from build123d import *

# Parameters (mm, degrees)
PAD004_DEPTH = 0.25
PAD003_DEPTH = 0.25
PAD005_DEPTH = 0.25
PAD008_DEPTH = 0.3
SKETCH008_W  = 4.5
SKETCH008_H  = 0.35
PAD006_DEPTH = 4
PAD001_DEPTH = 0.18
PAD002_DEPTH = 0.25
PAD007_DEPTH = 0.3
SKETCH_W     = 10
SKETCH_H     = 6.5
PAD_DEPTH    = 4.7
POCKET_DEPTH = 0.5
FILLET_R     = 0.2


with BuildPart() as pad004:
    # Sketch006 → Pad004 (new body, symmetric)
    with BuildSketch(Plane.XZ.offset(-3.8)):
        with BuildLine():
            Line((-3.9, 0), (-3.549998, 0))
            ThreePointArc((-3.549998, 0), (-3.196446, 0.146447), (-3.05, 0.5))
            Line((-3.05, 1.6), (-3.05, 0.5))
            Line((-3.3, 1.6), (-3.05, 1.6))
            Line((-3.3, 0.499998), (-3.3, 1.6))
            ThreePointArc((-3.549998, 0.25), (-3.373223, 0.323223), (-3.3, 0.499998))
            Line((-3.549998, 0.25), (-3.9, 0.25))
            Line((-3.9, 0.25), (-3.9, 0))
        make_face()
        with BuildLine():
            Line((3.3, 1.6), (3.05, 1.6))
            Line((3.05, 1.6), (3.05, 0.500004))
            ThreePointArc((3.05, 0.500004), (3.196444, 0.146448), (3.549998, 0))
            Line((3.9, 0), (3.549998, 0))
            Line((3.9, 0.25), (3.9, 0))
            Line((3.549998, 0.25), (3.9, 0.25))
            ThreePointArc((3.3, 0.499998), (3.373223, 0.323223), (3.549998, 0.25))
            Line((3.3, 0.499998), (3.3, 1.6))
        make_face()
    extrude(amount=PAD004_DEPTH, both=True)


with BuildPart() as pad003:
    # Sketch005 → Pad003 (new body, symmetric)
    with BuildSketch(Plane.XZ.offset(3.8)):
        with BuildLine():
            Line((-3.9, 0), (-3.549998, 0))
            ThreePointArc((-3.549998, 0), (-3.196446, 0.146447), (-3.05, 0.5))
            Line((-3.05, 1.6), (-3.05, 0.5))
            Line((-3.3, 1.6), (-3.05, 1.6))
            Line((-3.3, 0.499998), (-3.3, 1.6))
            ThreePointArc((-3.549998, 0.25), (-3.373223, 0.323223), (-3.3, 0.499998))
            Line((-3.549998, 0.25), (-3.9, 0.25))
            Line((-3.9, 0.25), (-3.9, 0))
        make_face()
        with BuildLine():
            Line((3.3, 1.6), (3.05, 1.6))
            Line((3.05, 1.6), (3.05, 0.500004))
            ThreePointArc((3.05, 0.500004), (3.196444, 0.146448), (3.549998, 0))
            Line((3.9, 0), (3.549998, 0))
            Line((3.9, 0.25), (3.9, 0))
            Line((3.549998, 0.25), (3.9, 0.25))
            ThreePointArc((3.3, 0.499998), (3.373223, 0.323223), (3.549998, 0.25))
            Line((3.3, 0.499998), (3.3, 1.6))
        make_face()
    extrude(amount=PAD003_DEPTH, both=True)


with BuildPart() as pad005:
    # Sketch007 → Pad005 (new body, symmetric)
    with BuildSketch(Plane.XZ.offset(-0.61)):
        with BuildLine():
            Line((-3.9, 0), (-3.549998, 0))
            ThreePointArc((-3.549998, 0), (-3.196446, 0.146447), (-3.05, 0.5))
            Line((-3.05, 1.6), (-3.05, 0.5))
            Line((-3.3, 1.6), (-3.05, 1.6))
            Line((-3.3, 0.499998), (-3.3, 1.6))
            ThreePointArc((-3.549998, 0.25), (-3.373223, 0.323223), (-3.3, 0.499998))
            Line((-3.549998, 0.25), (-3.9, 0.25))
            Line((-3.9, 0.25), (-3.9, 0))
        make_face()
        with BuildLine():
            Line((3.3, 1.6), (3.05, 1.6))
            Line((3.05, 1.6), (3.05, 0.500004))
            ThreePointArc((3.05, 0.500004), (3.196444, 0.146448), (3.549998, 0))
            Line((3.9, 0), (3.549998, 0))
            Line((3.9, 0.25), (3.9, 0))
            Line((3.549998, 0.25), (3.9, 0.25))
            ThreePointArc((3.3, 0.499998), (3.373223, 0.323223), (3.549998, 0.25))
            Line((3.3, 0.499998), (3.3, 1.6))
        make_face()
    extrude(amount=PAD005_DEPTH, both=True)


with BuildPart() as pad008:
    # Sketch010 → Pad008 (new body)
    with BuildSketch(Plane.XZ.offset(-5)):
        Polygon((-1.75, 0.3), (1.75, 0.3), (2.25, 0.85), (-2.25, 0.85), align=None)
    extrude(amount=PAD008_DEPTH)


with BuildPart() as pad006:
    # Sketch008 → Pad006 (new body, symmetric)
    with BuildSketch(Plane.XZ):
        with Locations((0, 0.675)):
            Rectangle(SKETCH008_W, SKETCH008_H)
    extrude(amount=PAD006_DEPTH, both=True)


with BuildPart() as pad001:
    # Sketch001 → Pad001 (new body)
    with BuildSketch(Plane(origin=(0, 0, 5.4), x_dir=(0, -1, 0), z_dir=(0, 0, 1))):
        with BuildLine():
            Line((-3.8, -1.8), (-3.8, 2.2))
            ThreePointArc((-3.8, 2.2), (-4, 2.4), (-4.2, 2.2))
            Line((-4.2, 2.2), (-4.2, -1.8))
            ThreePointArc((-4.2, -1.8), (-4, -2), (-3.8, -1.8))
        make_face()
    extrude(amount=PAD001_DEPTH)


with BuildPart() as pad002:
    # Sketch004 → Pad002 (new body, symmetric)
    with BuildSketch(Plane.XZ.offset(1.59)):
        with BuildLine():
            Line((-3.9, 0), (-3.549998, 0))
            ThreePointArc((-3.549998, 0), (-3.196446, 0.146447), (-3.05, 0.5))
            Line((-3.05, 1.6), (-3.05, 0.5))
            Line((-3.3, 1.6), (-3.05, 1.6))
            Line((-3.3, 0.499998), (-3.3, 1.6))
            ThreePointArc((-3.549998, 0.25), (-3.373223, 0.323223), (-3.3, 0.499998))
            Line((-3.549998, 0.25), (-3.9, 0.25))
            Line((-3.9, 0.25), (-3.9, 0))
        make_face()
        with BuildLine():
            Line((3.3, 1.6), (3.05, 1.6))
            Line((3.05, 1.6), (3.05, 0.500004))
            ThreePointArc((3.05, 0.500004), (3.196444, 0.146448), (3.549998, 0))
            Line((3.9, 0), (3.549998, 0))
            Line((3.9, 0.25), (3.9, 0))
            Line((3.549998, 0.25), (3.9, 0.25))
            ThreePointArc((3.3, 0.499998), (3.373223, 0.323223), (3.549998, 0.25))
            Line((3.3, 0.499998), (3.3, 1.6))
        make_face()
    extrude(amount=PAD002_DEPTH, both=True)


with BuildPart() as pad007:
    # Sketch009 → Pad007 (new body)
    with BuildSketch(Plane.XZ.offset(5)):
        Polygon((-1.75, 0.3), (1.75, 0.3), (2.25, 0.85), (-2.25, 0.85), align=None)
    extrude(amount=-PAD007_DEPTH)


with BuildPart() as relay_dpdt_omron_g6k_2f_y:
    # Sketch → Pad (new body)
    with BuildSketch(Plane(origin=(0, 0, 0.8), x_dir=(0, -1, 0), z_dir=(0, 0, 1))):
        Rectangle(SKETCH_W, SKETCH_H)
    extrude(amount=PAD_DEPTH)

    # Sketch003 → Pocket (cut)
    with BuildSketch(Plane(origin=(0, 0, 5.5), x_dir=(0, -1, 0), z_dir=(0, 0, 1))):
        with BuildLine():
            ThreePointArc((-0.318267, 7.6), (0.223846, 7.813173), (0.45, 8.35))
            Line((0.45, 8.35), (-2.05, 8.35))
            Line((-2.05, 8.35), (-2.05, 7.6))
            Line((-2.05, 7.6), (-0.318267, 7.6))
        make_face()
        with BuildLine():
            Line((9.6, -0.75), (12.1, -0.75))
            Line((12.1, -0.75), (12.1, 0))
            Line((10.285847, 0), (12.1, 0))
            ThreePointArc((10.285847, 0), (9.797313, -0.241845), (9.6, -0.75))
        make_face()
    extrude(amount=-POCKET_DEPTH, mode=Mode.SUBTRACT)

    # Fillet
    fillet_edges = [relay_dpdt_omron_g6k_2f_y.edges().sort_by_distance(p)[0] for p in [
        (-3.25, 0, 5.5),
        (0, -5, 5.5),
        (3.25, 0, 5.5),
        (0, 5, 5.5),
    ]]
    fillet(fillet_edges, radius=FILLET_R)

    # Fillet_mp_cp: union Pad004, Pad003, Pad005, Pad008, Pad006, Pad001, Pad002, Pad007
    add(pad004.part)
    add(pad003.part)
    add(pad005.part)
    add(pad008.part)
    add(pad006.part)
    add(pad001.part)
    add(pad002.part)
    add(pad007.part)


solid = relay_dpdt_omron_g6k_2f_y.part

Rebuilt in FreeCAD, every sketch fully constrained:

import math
import FreeCAD as App
import Part
import Sketcher
from FreeCAD import Vector
Q = App.Units.Quantity


def edges_at(feature, points):
    """Names of the edges that pass closest to the given points."""
    edges = feature.Shape.Edges
    near = lambda p: min(range(len(edges)), key=lambda i: edges[i].distToShape(Part.Vertex(*p))[0])
    return sorted({f"Edge{near(p) + 1}" for p in points})

doc = App.newDocument("Part")
body = doc.addObject("PartDesign::Body", "Body")
body.AllowCompound = True

# Sketch on XZ plane
sketch1 = body.newObject("Sketcher::SketchObject", "Sketch")
sketch1.AttachmentSupport = (doc.getObject("XZ_Plane"), [""])
sketch1.MapMode = "FlatFace"
sketch1.AttachmentOffset = App.Placement(Vector(0, 0, -3.8), App.Rotation())
sketch1.addGeometry([
    Part.LineSegment(Vector(-3.9, 0, 0), Vector(-3.55, 0, 0)),  # 0
    Part.ArcOfCircle(Part.Circle(Vector(-3.55, 0.5, 0), Vector(0, 0, 1), 0.5), math.radians(-90), math.radians(0)),  # 1
    Part.LineSegment(Vector(-3.05, 0.5, 0), Vector(-3.05, 1.6, 0)),  # 2
    Part.LineSegment(Vector(-3.05, 1.6, 0), Vector(-3.3, 1.6, 0)),  # 3
    Part.LineSegment(Vector(-3.3, 1.6, 0), Vector(-3.3, 0.5, 0)),  # 4
    Part.ArcOfCircle(Part.Circle(Vector(-3.55, 0.5, 0), Vector(0, 0, 1), 0.25), math.radians(-90), math.radians(0)),  # 5
    Part.LineSegment(Vector(-3.55, 0.25, 0), Vector(-3.9, 0.25, 0)),  # 6
    Part.LineSegment(Vector(-3.9, 0.25, 0), Vector(-3.9, 0, 0)),  # 7
    Part.LineSegment(Vector(3.3, 1.6, 0), Vector(3.05, 1.6, 0)),  # 8
    Part.LineSegment(Vector(3.05, 1.6, 0), Vector(3.05, 0.5, 0)),  # 9
    Part.ArcOfCircle(Part.Circle(Vector(3.55, 0.5, 0), Vector(0, 0, 1), 0.5), math.radians(180), math.radians(270)),  # 10
    Part.LineSegment(Vector(3.55, 0, 0), Vector(3.9, 0, 0)),  # 11
    Part.LineSegment(Vector(3.9, 0, 0), Vector(3.9, 0.25, 0)),  # 12
    Part.LineSegment(Vector(3.9, 0.25, 0), Vector(3.55, 0.25, 0)),  # 13
    Part.ArcOfCircle(Part.Circle(Vector(3.55, 0.5, 0), Vector(0, 0, 1), 0.25), math.radians(-180), math.radians(-90)),  # 14
    Part.LineSegment(Vector(3.3, 0.5, 0), Vector(3.3, 1.6, 0)),  # 15
], False)
sketch1.addConstraint([
    Sketcher.Constraint("Coincident", 0, 2, 1, 1),
    Sketcher.Constraint("Tangent", 1, 2, 2, 1),
    Sketcher.Constraint("Coincident", 2, 2, 3, 1),
    Sketcher.Constraint("Coincident", 3, 2, 4, 1),
    Sketcher.Constraint("Coincident", 4, 2, 5, 2),
    Sketcher.Constraint("Coincident", 5, 1, 6, 1),
    Sketcher.Constraint("Coincident", 6, 2, 7, 1),
    Sketcher.Constraint("Coincident", 7, 2, 0, 1),
    Sketcher.Constraint("Coincident", 8, 2, 9, 1),
    Sketcher.Constraint("Coincident", 9, 2, 10, 1),
    Sketcher.Constraint("Tangent", 10, 2, 11, 1),
    Sketcher.Constraint("Coincident", 11, 2, 12, 1),
    Sketcher.Constraint("Coincident", 12, 2, 13, 1),
    Sketcher.Constraint("Coincident", 13, 2, 14, 2),
    Sketcher.Constraint("Coincident", 14, 1, 15, 1),
    Sketcher.Constraint("Coincident", 15, 2, 8, 1),
    Sketcher.Constraint("Horizontal", 0),
    Sketcher.Constraint("Vertical", 2),
    Sketcher.Constraint("Horizontal", 3),
    Sketcher.Constraint("Vertical", 4),
    Sketcher.Constraint("Horizontal", 6),
    Sketcher.Constraint("Vertical", 7),
    Sketcher.Constraint("Horizontal", 8),
    Sketcher.Constraint("Vertical", 9),
    Sketcher.Constraint("Horizontal", 11),
    Sketcher.Constraint("Vertical", 12),
    Sketcher.Constraint("Horizontal", 13),
    Sketcher.Constraint("Vertical", 15),
    Sketcher.Constraint("Coincident", 5, 3, 1, 3),
    Sketcher.Constraint("Coincident", 14, 3, 10, 3),
    Sketcher.Constraint("Equal", 1, 10),
    Sketcher.Constraint("Equal", 5, 14),
    Sketcher.Constraint("Symmetric", 0, 2, 10, 2, -1, 1),
    Sketcher.Constraint("Symmetric", 1, 3, 10, 3, -2),
    Sketcher.Constraint("Horizontal", 14, 3, 4, 2),
    Sketcher.Constraint("Horizontal", 3, 2, 8, 2),
    Sketcher.Constraint("Horizontal", 4, 2, 14, 1),
    Sketcher.Constraint("Vertical", 0, 2, 5, 1),
    Sketcher.Constraint("Vertical", 10, 2, 13, 2),
    Sketcher.Constraint("Equal", 6, 11),
    Sketcher.Constraint("Radius", 1, Q("0.5 mm")),
    Sketcher.Constraint("Radius", 5, Q("0.249999 mm")),
    Sketcher.Constraint("DistanceY", 2, 1, 2, 2, Q("1.1 mm")),
    Sketcher.Constraint("DistanceX", 0, 1, 0, 2, Q("0.350002 mm")),
    Sketcher.Constraint("DistanceX", 3, 2, -1, 1, Q("3.3 mm")),
    Sketcher.Constraint("DistanceY", 9, 2, 9, 1, Q("1.099996 mm")),
])
pad1 = body.newObject("PartDesign::Pad", "Pad")
pad1.Profile = sketch1
pad1.Length = 0.5
pad1.Midplane = True
body2 = doc.addObject("PartDesign::Body", "Body001")
body2.AllowCompound = True

# Sketch on XZ plane
sketch2 = body2.newObject("Sketcher::SketchObject", "Sketch001")
sketch2.AttachmentSupport = (doc.getObject("XZ_Plane001"), [""])
sketch2.MapMode = "FlatFace"
sketch2.AttachmentOffset = App.Placement(Vector(0, 0, 3.8), App.Rotation())
sketch2.addGeometry([
    Part.LineSegment(Vector(-3.9, 0, 0), Vector(-3.55, 0, 0)),  # 0
    Part.ArcOfCircle(Part.Circle(Vector(-3.55, 0.5, 0), Vector(0, 0, 1), 0.5), math.radians(-90), math.radians(0)),  # 1
    Part.LineSegment(Vector(-3.05, 0.5, 0), Vector(-3.05, 1.6, 0)),  # 2
    Part.LineSegment(Vector(-3.05, 1.6, 0), Vector(-3.3, 1.6, 0)),  # 3
    Part.LineSegment(Vector(-3.3, 1.6, 0), Vector(-3.3, 0.5, 0)),  # 4
    Part.ArcOfCircle(Part.Circle(Vector(-3.55, 0.5, 0), Vector(0, 0, 1), 0.25), math.radians(-90), math.radians(0)),  # 5
    Part.LineSegment(Vector(-3.55, 0.25, 0), Vector(-3.9, 0.25, 0)),  # 6
    Part.LineSegment(Vector(-3.9, 0.25, 0), Vector(-3.9, 0, 0)),  # 7
    Part.LineSegment(Vector(3.3, 1.6, 0), Vector(3.05, 1.6, 0)),  # 8
    Part.LineSegment(Vector(3.05, 1.6, 0), Vector(3.05, 0.5, 0)),  # 9
    Part.ArcOfCircle(Part.Circle(Vector(3.55, 0.5, 0), Vector(0, 0, 1), 0.5), math.radians(180), math.radians(270)),  # 10
    Part.LineSegment(Vector(3.55, 0, 0), Vector(3.9, 0, 0)),  # 11
    Part.LineSegment(Vector(3.9, 0, 0), Vector(3.9, 0.25, 0)),  # 12
    Part.LineSegment(Vector(3.9, 0.25, 0), Vector(3.55, 0.25, 0)),  # 13
    Part.ArcOfCircle(Part.Circle(Vector(3.55, 0.5, 0), Vector(0, 0, 1), 0.25), math.radians(-180), math.radians(-90)),  # 14
    Part.LineSegment(Vector(3.3, 0.5, 0), Vector(3.3, 1.6, 0)),  # 15
], False)
sketch2.addConstraint([
    Sketcher.Constraint("Coincident", 0, 2, 1, 1),
    Sketcher.Constraint("Tangent", 1, 2, 2, 1),
    Sketcher.Constraint("Coincident", 2, 2, 3, 1),
    Sketcher.Constraint("Coincident", 3, 2, 4, 1),
    Sketcher.Constraint("Coincident", 4, 2, 5, 2),
    Sketcher.Constraint("Coincident", 5, 1, 6, 1),
    Sketcher.Constraint("Coincident", 6, 2, 7, 1),
    Sketcher.Constraint("Coincident", 7, 2, 0, 1),
    Sketcher.Constraint("Coincident", 8, 2, 9, 1),
    Sketcher.Constraint("Coincident", 9, 2, 10, 1),
    Sketcher.Constraint("Tangent", 10, 2, 11, 1),
    Sketcher.Constraint("Coincident", 11, 2, 12, 1),
    Sketcher.Constraint("Coincident", 12, 2, 13, 1),
    Sketcher.Constraint("Coincident", 13, 2, 14, 2),
    Sketcher.Constraint("Coincident", 14, 1, 15, 1),
    Sketcher.Constraint("Coincident", 15, 2, 8, 1),
    Sketcher.Constraint("Horizontal", 0),
    Sketcher.Constraint("Vertical", 2),
    Sketcher.Constraint("Horizontal", 3),
    Sketcher.Constraint("Vertical", 4),
    Sketcher.Constraint("Horizontal", 6),
    Sketcher.Constraint("Vertical", 7),
    Sketcher.Constraint("Horizontal", 8),
    Sketcher.Constraint("Vertical", 9),
    Sketcher.Constraint("Horizontal", 11),
    Sketcher.Constraint("Vertical", 12),
    Sketcher.Constraint("Horizontal", 13),
    Sketcher.Constraint("Vertical", 15),
    Sketcher.Constraint("Coincident", 5, 3, 1, 3),
    Sketcher.Constraint("Coincident", 14, 3, 10, 3),
    Sketcher.Constraint("Equal", 1, 10),
    Sketcher.Constraint("Equal", 5, 14),
    Sketcher.Constraint("Symmetric", 0, 2, 10, 2, -1, 1),
    Sketcher.Constraint("Symmetric", 1, 3, 10, 3, -2),
    Sketcher.Constraint("Horizontal", 14, 3, 4, 2),
    Sketcher.Constraint("Horizontal", 3, 2, 8, 2),
    Sketcher.Constraint("Horizontal", 4, 2, 14, 1),
    Sketcher.Constraint("Vertical", 0, 2, 5, 1),
    Sketcher.Constraint("Vertical", 10, 2, 13, 2),
    Sketcher.Constraint("Equal", 6, 11),
    Sketcher.Constraint("Radius", 1, Q("0.5 mm")),
    Sketcher.Constraint("Radius", 5, Q("0.249999 mm")),
    Sketcher.Constraint("DistanceY", 2, 1, 2, 2, Q("1.1 mm")),
    Sketcher.Constraint("DistanceX", 0, 1, 0, 2, Q("0.350002 mm")),
    Sketcher.Constraint("DistanceX", 3, 2, -1, 1, Q("3.3 mm")),
    Sketcher.Constraint("DistanceY", 9, 2, 9, 1, Q("1.099996 mm")),
])
pad2 = body2.newObject("PartDesign::Pad", "Pad001")
pad2.Profile = sketch2
pad2.Length = 0.5
pad2.Midplane = True
body3 = doc.addObject("PartDesign::Body", "Body002")
body3.AllowCompound = True

# Sketch on XZ plane
sketch3 = body3.newObject("Sketcher::SketchObject", "Sketch002")
sketch3.AttachmentSupport = (doc.getObject("XZ_Plane002"), [""])
sketch3.MapMode = "FlatFace"
sketch3.AttachmentOffset = App.Placement(Vector(0, 0, -0.61), App.Rotation())
sketch3.addGeometry([
    Part.LineSegment(Vector(-3.9, 0, 0), Vector(-3.55, 0, 0)),  # 0
    Part.ArcOfCircle(Part.Circle(Vector(-3.55, 0.5, 0), Vector(0, 0, 1), 0.5), math.radians(-90), math.radians(0)),  # 1
    Part.LineSegment(Vector(-3.05, 0.5, 0), Vector(-3.05, 1.6, 0)),  # 2
    Part.LineSegment(Vector(-3.05, 1.6, 0), Vector(-3.3, 1.6, 0)),  # 3
    Part.LineSegment(Vector(-3.3, 1.6, 0), Vector(-3.3, 0.5, 0)),  # 4
    Part.ArcOfCircle(Part.Circle(Vector(-3.55, 0.5, 0), Vector(0, 0, 1), 0.25), math.radians(-90), math.radians(0)),  # 5
    Part.LineSegment(Vector(-3.55, 0.25, 0), Vector(-3.9, 0.25, 0)),  # 6
    Part.LineSegment(Vector(-3.9, 0.25, 0), Vector(-3.9, 0, 0)),  # 7
    Part.LineSegment(Vector(3.3, 1.6, 0), Vector(3.05, 1.6, 0)),  # 8
    Part.LineSegment(Vector(3.05, 1.6, 0), Vector(3.05, 0.5, 0)),  # 9
    Part.ArcOfCircle(Part.Circle(Vector(3.55, 0.5, 0), Vector(0, 0, 1), 0.5), math.radians(180), math.radians(270)),  # 10
    Part.LineSegment(Vector(3.55, 0, 0), Vector(3.9, 0, 0)),  # 11
    Part.LineSegment(Vector(3.9, 0, 0), Vector(3.9, 0.25, 0)),  # 12
    Part.LineSegment(Vector(3.9, 0.25, 0), Vector(3.55, 0.25, 0)),  # 13
    Part.ArcOfCircle(Part.Circle(Vector(3.55, 0.5, 0), Vector(0, 0, 1), 0.25), math.radians(-180), math.radians(-90)),  # 14
    Part.LineSegment(Vector(3.3, 0.5, 0), Vector(3.3, 1.6, 0)),  # 15
], False)
sketch3.addConstraint([
    Sketcher.Constraint("Coincident", 0, 2, 1, 1),
    Sketcher.Constraint("Tangent", 1, 2, 2, 1),
    Sketcher.Constraint("Coincident", 2, 2, 3, 1),
    Sketcher.Constraint("Coincident", 3, 2, 4, 1),
    Sketcher.Constraint("Coincident", 4, 2, 5, 2),
    Sketcher.Constraint("Coincident", 5, 1, 6, 1),
    Sketcher.Constraint("Coincident", 6, 2, 7, 1),
    Sketcher.Constraint("Coincident", 7, 2, 0, 1),
    Sketcher.Constraint("Coincident", 8, 2, 9, 1),
    Sketcher.Constraint("Coincident", 9, 2, 10, 1),
    Sketcher.Constraint("Tangent", 10, 2, 11, 1),
    Sketcher.Constraint("Coincident", 11, 2, 12, 1),
    Sketcher.Constraint("Coincident", 12, 2, 13, 1),
    Sketcher.Constraint("Coincident", 13, 2, 14, 2),
    Sketcher.Constraint("Coincident", 14, 1, 15, 1),
    Sketcher.Constraint("Coincident", 15, 2, 8, 1),
    Sketcher.Constraint("Horizontal", 0),
    Sketcher.Constraint("Vertical", 2),
    Sketcher.Constraint("Horizontal", 3),
    Sketcher.Constraint("Vertical", 4),
    Sketcher.Constraint("Horizontal", 6),
    Sketcher.Constraint("Vertical", 7),
    Sketcher.Constraint("Horizontal", 8),
    Sketcher.Constraint("Vertical", 9),
    Sketcher.Constraint("Horizontal", 11),
    Sketcher.Constraint("Vertical", 12),
    Sketcher.Constraint("Horizontal", 13),
    Sketcher.Constraint("Vertical", 15),
    Sketcher.Constraint("Coincident", 5, 3, 1, 3),
    Sketcher.Constraint("Coincident", 14, 3, 10, 3),
    Sketcher.Constraint("Equal", 1, 10),
    Sketcher.Constraint("Equal", 5, 14),
    Sketcher.Constraint("Symmetric", 0, 2, 10, 2, -1, 1),
    Sketcher.Constraint("Symmetric", 1, 3, 10, 3, -2),
    Sketcher.Constraint("Horizontal", 14, 3, 4, 2),
    Sketcher.Constraint("Horizontal", 3, 2, 8, 2),
    Sketcher.Constraint("Horizontal", 4, 2, 14, 1),
    Sketcher.Constraint("Vertical", 0, 2, 5, 1),
    Sketcher.Constraint("Vertical", 10, 2, 13, 2),
    Sketcher.Constraint("Equal", 6, 11),
    Sketcher.Constraint("Radius", 1, Q("0.5 mm")),
    Sketcher.Constraint("Radius", 5, Q("0.249999 mm")),
    Sketcher.Constraint("DistanceY", 2, 1, 2, 2, Q("1.1 mm")),
    Sketcher.Constraint("DistanceX", 0, 1, 0, 2, Q("0.350002 mm")),
    Sketcher.Constraint("DistanceX", 3, 2, -1, 1, Q("3.3 mm")),
    Sketcher.Constraint("DistanceY", 9, 2, 9, 1, Q("1.099996 mm")),
])
pad3 = body3.newObject("PartDesign::Pad", "Pad002")
pad3.Profile = sketch3
pad3.Length = 0.5
pad3.Midplane = True
body4 = doc.addObject("PartDesign::Body", "Body003")

# Sketch on XZ plane
sketch4 = body4.newObject("Sketcher::SketchObject", "Sketch003")
sketch4.AttachmentSupport = (doc.getObject("XZ_Plane003"), [""])
sketch4.MapMode = "FlatFace"
sketch4.AttachmentOffset = App.Placement(Vector(0, 0, -5), App.Rotation())
sketch4.addGeometry([
    Part.LineSegment(Vector(-1.8, 0.3, 0), Vector(1.8, 0.3, 0)),
    Part.LineSegment(Vector(1.8, 0.3, 0), Vector(2.2, 0.8, 0)),
    Part.LineSegment(Vector(2.2, 0.8, 0), Vector(-2.2, 0.8, 0)),
    Part.LineSegment(Vector(-2.2, 0.8, 0), Vector(-1.8, 0.3, 0)),
], False)
sketch4.addConstraint([
    Sketcher.Constraint("Coincident", 0, 2, 1, 1),
    Sketcher.Constraint("Coincident", 1, 2, 2, 1),
    Sketcher.Constraint("Coincident", 2, 2, 3, 1),
    Sketcher.Constraint("Coincident", 3, 2, 0, 1),
    Sketcher.Constraint("Horizontal", 0),
    Sketcher.Constraint("Horizontal", 2),
    Sketcher.Constraint("Equal", 1, 3),
    Sketcher.Constraint("DistanceX", 0, 1, 0, 2, Q("3.5 mm")),
    Sketcher.Constraint("DistanceX", 2, 2, 2, 1, Q("4.5 mm")),
    Sketcher.Constraint("DistanceY", -1, 1, 0, 2, Q("0.3 mm")),
    Sketcher.Constraint("DistanceX", -1, 1, 0, 2, Q("1.75 mm")),
    Sketcher.Constraint("DistanceY", -1, 1, 1, 2, Q("0.85 mm")),
])
pad4 = body4.newObject("PartDesign::Pad", "Pad003")
pad4.Profile = sketch4
pad4.Length = 0.3
body5 = doc.addObject("PartDesign::Body", "Body004")

# Sketch on XZ plane
sketch5 = body5.newObject("Sketcher::SketchObject", "Sketch004")
sketch5.AttachmentSupport = (doc.getObject("XZ_Plane004"), [""])
sketch5.MapMode = "FlatFace"
sketch5.addGeometry([
    Part.LineSegment(Vector(-2.25, 0.85, 0), Vector(-2.25, 0.5, 0)),
    Part.LineSegment(Vector(-2.25, 0.5, 0), Vector(2.25, 0.5, 0)),
    Part.LineSegment(Vector(2.25, 0.5, 0), Vector(2.25, 0.85, 0)),
    Part.LineSegment(Vector(2.25, 0.85, 0), Vector(-2.25, 0.85, 0)),
], False)
sketch5.addConstraint([
    Sketcher.Constraint("Coincident", 0, 2, 1, 1),
    Sketcher.Constraint("Coincident", 1, 2, 2, 1),
    Sketcher.Constraint("Coincident", 2, 2, 3, 1),
    Sketcher.Constraint("Coincident", 3, 2, 0, 1),
    Sketcher.Constraint("Vertical", 0),
    Sketcher.Constraint("Horizontal", 1),
    Sketcher.Constraint("Vertical", 2),
    Sketcher.Constraint("Horizontal", 3),
    Sketcher.Constraint("DistanceX", 1, 1, 1, 2, Q("4.5 mm")),
    Sketcher.Constraint("DistanceY", 0, 2, 0, 1, Q("0.35 mm")),
    Sketcher.Constraint("DistanceY", -1, 1, 0, 2, Q("0.5 mm")),
    Sketcher.Constraint("DistanceX", 0, 2, -1, 1, Q("2.25 mm")),
])
pad5 = body5.newObject("PartDesign::Pad", "Pad004")
pad5.Profile = sketch5
pad5.Length = 8
pad5.Midplane = True
body6 = doc.addObject("PartDesign::Body", "Body005")

# Sketch on XY plane
sketch6 = body6.newObject("Sketcher::SketchObject", "Sketch005")
sketch6.AttachmentSupport = (doc.getObject("XY_Plane005"), [""])
sketch6.MapMode = "FlatFace"
sketch6.AttachmentOffset = App.Placement(Vector(0, 0, 5.4), App.Rotation())
sketch6.addGeometry([
    Part.LineSegment(Vector(-1.8, 3.8, 0), Vector(2.2, 3.8, 0)),
    Part.ArcOfCircle(Part.Circle(Vector(2.2, 4, 0), Vector(0, 0, 1), 0.2), math.radians(-90), math.radians(90)),
    Part.LineSegment(Vector(2.2, 4.2, 0), Vector(-1.8, 4.2, 0)),
    Part.ArcOfCircle(Part.Circle(Vector(-1.8, 4, 0), Vector(0, 0, 1), 0.2), math.radians(90), math.radians(270)),
], False)
sketch6.addConstraint([
    Sketcher.Constraint("Tangent", 0, 2, 1, 1),
    Sketcher.Constraint("Tangent", 1, 2, 2, 1),
    Sketcher.Constraint("Tangent", 2, 2, 3, 1),
    Sketcher.Constraint("Tangent", 3, 2, 0, 1),
    Sketcher.Constraint("Horizontal", 0),
    Sketcher.Constraint("Horizontal", 2),
    Sketcher.Constraint("Radius", 1, Q("0.2 mm")),
    Sketcher.Constraint("DistanceX", 0, 1, 0, 2, Q("4 mm")),
    Sketcher.Constraint("DistanceY", -1, 1, 1, 3, Q("4 mm")),
    Sketcher.Constraint("DistanceX", -1, 1, 1, 3, Q("2.2 mm")),
])
pad6 = body6.newObject("PartDesign::Pad", "Pad005")
pad6.Profile = sketch6
pad6.Length = 0.18
body7 = doc.addObject("PartDesign::Body", "Body006")
body7.AllowCompound = True

# Sketch on XZ plane
sketch7 = body7.newObject("Sketcher::SketchObject", "Sketch006")
sketch7.AttachmentSupport = (doc.getObject("XZ_Plane006"), [""])
sketch7.MapMode = "FlatFace"
sketch7.AttachmentOffset = App.Placement(Vector(0, 0, 1.59), App.Rotation())
sketch7.addGeometry([
    Part.LineSegment(Vector(-3.9, 0, 0), Vector(-3.55, 0, 0)),  # 0
    Part.ArcOfCircle(Part.Circle(Vector(-3.55, 0.5, 0), Vector(0, 0, 1), 0.5), math.radians(-90), math.radians(0)),  # 1
    Part.LineSegment(Vector(-3.05, 0.5, 0), Vector(-3.05, 1.6, 0)),  # 2
    Part.LineSegment(Vector(-3.05, 1.6, 0), Vector(-3.3, 1.6, 0)),  # 3
    Part.LineSegment(Vector(-3.3, 1.6, 0), Vector(-3.3, 0.5, 0)),  # 4
    Part.ArcOfCircle(Part.Circle(Vector(-3.55, 0.5, 0), Vector(0, 0, 1), 0.25), math.radians(-90), math.radians(0)),  # 5
    Part.LineSegment(Vector(-3.55, 0.25, 0), Vector(-3.9, 0.25, 0)),  # 6
    Part.LineSegment(Vector(-3.9, 0.25, 0), Vector(-3.9, 0, 0)),  # 7
    Part.LineSegment(Vector(3.3, 1.6, 0), Vector(3.05, 1.6, 0)),  # 8
    Part.LineSegment(Vector(3.05, 1.6, 0), Vector(3.05, 0.5, 0)),  # 9
    Part.ArcOfCircle(Part.Circle(Vector(3.55, 0.5, 0), Vector(0, 0, 1), 0.5), math.radians(180), math.radians(270)),  # 10
    Part.LineSegment(Vector(3.55, 0, 0), Vector(3.9, 0, 0)),  # 11
    Part.LineSegment(Vector(3.9, 0, 0), Vector(3.9, 0.25, 0)),  # 12
    Part.LineSegment(Vector(3.9, 0.25, 0), Vector(3.55, 0.25, 0)),  # 13
    Part.ArcOfCircle(Part.Circle(Vector(3.55, 0.5, 0), Vector(0, 0, 1), 0.25), math.radians(-180), math.radians(-90)),  # 14
    Part.LineSegment(Vector(3.3, 0.5, 0), Vector(3.3, 1.6, 0)),  # 15
], False)
sketch7.addConstraint([
    Sketcher.Constraint("Coincident", 0, 2, 1, 1),
    Sketcher.Constraint("Tangent", 1, 2, 2, 1),
    Sketcher.Constraint("Coincident", 2, 2, 3, 1),
    Sketcher.Constraint("Coincident", 3, 2, 4, 1),
    Sketcher.Constraint("Coincident", 4, 2, 5, 2),
    Sketcher.Constraint("Coincident", 5, 1, 6, 1),
    Sketcher.Constraint("Coincident", 6, 2, 7, 1),
    Sketcher.Constraint("Coincident", 7, 2, 0, 1),
    Sketcher.Constraint("Coincident", 8, 2, 9, 1),
    Sketcher.Constraint("Coincident", 9, 2, 10, 1),
    Sketcher.Constraint("Tangent", 10, 2, 11, 1),
    Sketcher.Constraint("Coincident", 11, 2, 12, 1),
    Sketcher.Constraint("Coincident", 12, 2, 13, 1),
    Sketcher.Constraint("Coincident", 13, 2, 14, 2),
    Sketcher.Constraint("Coincident", 14, 1, 15, 1),
    Sketcher.Constraint("Coincident", 15, 2, 8, 1),
    Sketcher.Constraint("Horizontal", 0),
    Sketcher.Constraint("Vertical", 2),
    Sketcher.Constraint("Horizontal", 3),
    Sketcher.Constraint("Vertical", 4),
    Sketcher.Constraint("Horizontal", 6),
    Sketcher.Constraint("Vertical", 7),
    Sketcher.Constraint("Horizontal", 8),
    Sketcher.Constraint("Vertical", 9),
    Sketcher.Constraint("Horizontal", 11),
    Sketcher.Constraint("Vertical", 12),
    Sketcher.Constraint("Horizontal", 13),
    Sketcher.Constraint("Vertical", 15),
    Sketcher.Constraint("Coincident", 5, 3, 1, 3),
    Sketcher.Constraint("Coincident", 14, 3, 10, 3),
    Sketcher.Constraint("Equal", 1, 10),
    Sketcher.Constraint("Equal", 5, 14),
    Sketcher.Constraint("Symmetric", 0, 2, 10, 2, -1, 1),
    Sketcher.Constraint("Symmetric", 1, 3, 10, 3, -2),
    Sketcher.Constraint("Horizontal", 14, 3, 4, 2),
    Sketcher.Constraint("Horizontal", 3, 2, 8, 2),
    Sketcher.Constraint("Horizontal", 4, 2, 14, 1),
    Sketcher.Constraint("Vertical", 0, 2, 5, 1),
    Sketcher.Constraint("Vertical", 10, 2, 13, 2),
    Sketcher.Constraint("Equal", 6, 11),
    Sketcher.Constraint("Radius", 1, Q("0.5 mm")),
    Sketcher.Constraint("Radius", 5, Q("0.249999 mm")),
    Sketcher.Constraint("DistanceY", 2, 1, 2, 2, Q("1.1 mm")),
    Sketcher.Constraint("DistanceX", 0, 1, 0, 2, Q("0.350002 mm")),
    Sketcher.Constraint("DistanceX", 3, 2, -1, 1, Q("3.3 mm")),
    Sketcher.Constraint("DistanceY", 9, 2, 9, 1, Q("1.099996 mm")),
])
pad7 = body7.newObject("PartDesign::Pad", "Pad006")
pad7.Profile = sketch7
pad7.Length = 0.5
pad7.Midplane = True
body8 = doc.addObject("PartDesign::Body", "Body007")

# Sketch on XZ plane
sketch8 = body8.newObject("Sketcher::SketchObject", "Sketch007")
sketch8.AttachmentSupport = (doc.getObject("XZ_Plane007"), [""])
sketch8.MapMode = "FlatFace"
sketch8.AttachmentOffset = App.Placement(Vector(0, 0, 5), App.Rotation())
sketch8.addGeometry([
    Part.LineSegment(Vector(-1.8, 0.3, 0), Vector(1.8, 0.3, 0)),
    Part.LineSegment(Vector(1.8, 0.3, 0), Vector(2.2, 0.8, 0)),
    Part.LineSegment(Vector(2.2, 0.8, 0), Vector(-2.2, 0.8, 0)),
    Part.LineSegment(Vector(-2.2, 0.8, 0), Vector(-1.8, 0.3, 0)),
], False)
sketch8.addConstraint([
    Sketcher.Constraint("Coincident", 0, 2, 1, 1),
    Sketcher.Constraint("Coincident", 1, 2, 2, 1),
    Sketcher.Constraint("Coincident", 2, 2, 3, 1),
    Sketcher.Constraint("Coincident", 3, 2, 0, 1),
    Sketcher.Constraint("Horizontal", 0),
    Sketcher.Constraint("Horizontal", 2),
    Sketcher.Constraint("Equal", 1, 3),
    Sketcher.Constraint("DistanceX", 0, 1, 0, 2, Q("3.5 mm")),
    Sketcher.Constraint("DistanceX", 2, 2, 2, 1, Q("4.5 mm")),
    Sketcher.Constraint("DistanceY", -1, 1, 0, 2, Q("0.3 mm")),
    Sketcher.Constraint("DistanceX", -1, 1, 0, 2, Q("1.75 mm")),
    Sketcher.Constraint("DistanceY", -1, 1, 1, 2, Q("0.85 mm")),
])
pad8 = body8.newObject("PartDesign::Pad", "Pad007")
pad8.Profile = sketch8
pad8.Length = 0.3
pad8.Reversed = True
body9 = doc.addObject("PartDesign::Body", "Body008")

# Sketch on XY plane
sketch9 = body9.newObject("Sketcher::SketchObject", "Sketch008")
sketch9.AttachmentSupport = (doc.getObject("XY_Plane008"), [""])
sketch9.MapMode = "FlatFace"
sketch9.AttachmentOffset = App.Placement(Vector(0, 0, 0.8), App.Rotation())
sketch9.addGeometry([
    Part.LineSegment(Vector(3, 5, 0), Vector(-3, 5, 0)),
    Part.LineSegment(Vector(-3, 5, 0), Vector(-3, -5, 0)),
    Part.LineSegment(Vector(-3, -5, 0), Vector(3, -5, 0)),
    Part.LineSegment(Vector(3, -5, 0), Vector(3, 5, 0)),
], False)
sketch9.addConstraint([
    Sketcher.Constraint("Coincident", 0, 2, 1, 1),
    Sketcher.Constraint("Coincident", 1, 2, 2, 1),
    Sketcher.Constraint("Coincident", 2, 2, 3, 1),
    Sketcher.Constraint("Coincident", 3, 2, 0, 1),
    Sketcher.Constraint("Horizontal", 0),
    Sketcher.Constraint("Vertical", 1),
    Sketcher.Constraint("Horizontal", 2),
    Sketcher.Constraint("Vertical", 3),
    Sketcher.Constraint("Symmetric", 0, 2, 2, 2, -1, 1),
    Sketcher.Constraint("DistanceY", 1, 2, 1, 1, Q("10 mm")),
    Sketcher.Constraint("DistanceX", 0, 2, 0, 1, Q("6.5 mm")),
])
pad9 = body9.newObject("PartDesign::Pad", "Pad008")
pad9.Profile = sketch9
pad9.Length = 4.7

# Sketch on XY plane
sketch10 = body9.newObject("Sketcher::SketchObject", "Sketch009")
sketch10.AttachmentSupport = (doc.getObject("XY_Plane008"), [""])
sketch10.MapMode = "FlatFace"
sketch10.AttachmentOffset = App.Placement(Vector(0, 0, 5.5), App.Rotation())
sketch10.addGeometry([
    Part.ArcOfCircle(Part.Circle(Vector(8.350001, 0.300218, 0), Vector(0, 0, 1), 0.750218), math.radians(178.621405), math.radians(269.999956)),  # 0
    Part.LineSegment(Vector(8.35, -0.45, 0), Vector(8.35, 2.05, 0)),  # 1
    Part.LineSegment(Vector(8.35, 2.05, 0), Vector(7.6, 2.05, 0)),  # 2
    Part.LineSegment(Vector(7.6, 2.05, 0), Vector(7.6, 0.318267, 0)),  # 3
    Part.LineSegment(Vector(-0.75, -9.6, 0), Vector(-0.75, -12.1, 0)),  # 4
    Part.LineSegment(Vector(-0.75, -12.1, 0), Vector(0, -12.1, 0)),  # 5
    Part.LineSegment(Vector(0, -12.1, 0), Vector(0, -10.285847, 0)),  # 6
    Part.ArcOfCircle(Part.Circle(Vector(-0.749999, -10.353, 0), Vector(0, 0, 1), 0.753), math.radians(5.116445), math.radians(90.000051)),  # 7
], False)
sketch10.addConstraint([
    Sketcher.Constraint("Coincident", 0, 2, 1, 1),
    Sketcher.Constraint("Coincident", 1, 2, 2, 1),
    Sketcher.Constraint("Coincident", 2, 2, 3, 1),
    Sketcher.Constraint("Coincident", 3, 2, 0, 1),
    Sketcher.Constraint("Coincident", 4, 2, 5, 1),
    Sketcher.Constraint("Coincident", 5, 2, 6, 1),
    Sketcher.Constraint("Coincident", 6, 2, 7, 1),
    Sketcher.Constraint("Coincident", 7, 2, 4, 1),
    Sketcher.Constraint("Vertical", 1),
    Sketcher.Constraint("Horizontal", 2),
    Sketcher.Constraint("Vertical", 3),
    Sketcher.Constraint("Vertical", 4),
    Sketcher.Constraint("Horizontal", 5),
    Sketcher.Constraint("Vertical", 6),
    Sketcher.Constraint("PointOnObject", 5, 2, -2),
    Sketcher.Constraint("DistanceY", 1, 1, 1, 2, Q("2.5 mm")),
    Sketcher.Constraint("DistanceY", 4, 2, 4, 1, Q("2.5 mm")),
    Sketcher.Constraint("Radius", 7, Q("0.753 mm")),
    Sketcher.Constraint("DistanceX", 2, 2, 2, 1, Q("0.75 mm")),
    Sketcher.Constraint("DistanceX", 5, 1, 5, 2, Q("0.75 mm")),
    Sketcher.Constraint("DistanceX", -1, 1, 2, 2, Q("7.6 mm")),
    Sketcher.Constraint("DistanceY", 4, 2, -1, 1, Q("12.1 mm")),
    Sketcher.Constraint("DistanceX", 7, 3, 0, 3, Q("9.1 mm")),
    Sketcher.Constraint("DistanceX", 7, 3, 0, 2, Q("9.099999 mm")),
    Sketcher.Constraint("DistanceY", 0, 2, -1, 1, Q("0.45 mm")),
    Sketcher.Constraint("Radius", 0, Q("0.750218 mm")),
])
pocket1 = body9.newObject("PartDesign::Pocket", "Pocket")
pocket1.Profile = sketch10
pocket1.Length = 0.5
doc.recompute()

fillet = body9.newObject("PartDesign::Fillet", "Fillet")
fillet.Base = (pocket1, edges_at(pocket1, [
    (-3.25, 0, 5.5),
    (0, -5, 5.5),
    (3.25, 0, 5.5),
    (0, 5, 5.5),
]))
fillet.Radius = 0.2
doc.recompute()

boolean = body9.newObject("PartDesign::Boolean", "Boolean")
boolean.Type = "Fuse"
boolean.addObjects([body])
doc.recompute()

boolean2 = body9.newObject("PartDesign::Boolean", "Boolean001")
boolean2.Type = "Fuse"
boolean2.addObjects([body2])
doc.recompute()

boolean3 = body9.newObject("PartDesign::Boolean", "Boolean002")
boolean3.Type = "Fuse"
boolean3.addObjects([body3])
doc.recompute()

boolean4 = body9.newObject("PartDesign::Boolean", "Boolean003")
boolean4.Type = "Fuse"
boolean4.addObjects([body4])
doc.recompute()

boolean5 = body9.newObject("PartDesign::Boolean", "Boolean004")
boolean5.Type = "Fuse"
boolean5.addObjects([body5])
doc.recompute()

boolean6 = body9.newObject("PartDesign::Boolean", "Boolean005")
boolean6.Type = "Fuse"
boolean6.addObjects([body6])
doc.recompute()

boolean7 = body9.newObject("PartDesign::Boolean", "Boolean006")
boolean7.Type = "Fuse"
boolean7.addObjects([body7])
doc.recompute()

boolean8 = body9.newObject("PartDesign::Boolean", "Boolean007")
boolean8.Type = "Fuse"
boolean8.addObjects([body8])

doc.recompute()
